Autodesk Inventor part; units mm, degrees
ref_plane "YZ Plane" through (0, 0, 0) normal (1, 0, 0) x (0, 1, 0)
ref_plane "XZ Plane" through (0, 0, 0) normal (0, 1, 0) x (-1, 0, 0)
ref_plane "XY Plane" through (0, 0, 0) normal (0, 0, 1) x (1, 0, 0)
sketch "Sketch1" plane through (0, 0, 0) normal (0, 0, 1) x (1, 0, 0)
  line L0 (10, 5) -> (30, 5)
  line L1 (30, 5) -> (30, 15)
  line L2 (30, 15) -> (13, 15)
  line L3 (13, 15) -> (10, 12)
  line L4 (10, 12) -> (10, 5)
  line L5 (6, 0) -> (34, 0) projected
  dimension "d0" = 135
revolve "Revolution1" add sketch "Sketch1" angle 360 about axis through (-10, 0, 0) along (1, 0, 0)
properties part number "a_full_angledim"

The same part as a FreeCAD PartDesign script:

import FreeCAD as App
import Part
import Sketcher

V = App.Vector
Q = App.Units.Quantity

doc = App.newDocument("Part")
body = doc.addObject("PartDesign::Body", "Body")

# Sketch on XY plane
sketch1 = body.newObject("Sketcher::SketchObject", "Sketch")
sketch1.AttachmentSupport = (doc.getObject("XY_Plane"), [""])
sketch1.MapMode = "FlatFace"
sketch1.addGeometry(Part.LineSegment(V(10, 12, 0), V(10, 5, 0)), False)
sketch1.addGeometry(Part.LineSegment(V(10, 5, 0), V(30, 5, 0)), False)
sketch1.addGeometry(Part.LineSegment(V(30, 5, 0), V(30, 15, 0)), False)
sketch1.addGeometry(Part.LineSegment(V(30, 15, 0), V(13, 15, 0)), False)
sketch1.addGeometry(Part.LineSegment(V(13, 15, 0), V(10, 12, 0)), False)
sketch1.addConstraint(Sketcher.Constraint("Coincident", 0, 2, 1, 1))
sketch1.addConstraint(Sketcher.Constraint("Coincident", 1, 2, 2, 1))
sketch1.addConstraint(Sketcher.Constraint("Coincident", 2, 2, 3, 1))
sketch1.addConstraint(Sketcher.Constraint("Coincident", 3, 2, 4, 1))
sketch1.addConstraint(Sketcher.Constraint("Coincident", 4, 2, 0, 1))
sketch1.addConstraint(Sketcher.Constraint("Vertical", 0))
sketch1.addConstraint(Sketcher.Constraint("Horizontal", 1))
sketch1.addConstraint(Sketcher.Constraint("Vertical", 2))
sketch1.addConstraint(Sketcher.Constraint("Horizontal", 3))
sketch1.addConstraint(Sketcher.Constraint("Angle", 4, Q("-135 deg")))
sketch1.addConstraint(Sketcher.Constraint("DistanceX", 1, 1, 1, 2, 20.0))
sketch1.addConstraint(Sketcher.Constraint("DistanceX", 3, 2, 3, 1, 17.0))
sketch1.addConstraint(Sketcher.Constraint("DistanceY", 0, 2, 0, 1, 7.0))
sketch1.addConstraint(Sketcher.Constraint("DistanceX", -1, 1, 0, 2, 10.0))
sketch1.addConstraint(Sketcher.Constraint("DistanceY", -1, 1, 0, 2, 5.0))
revolution = body.newObject("PartDesign::Revolution", "Revolution")
revolution.Profile = sketch1
revolution.ReferenceAxis = (sketch1, ["H_Axis"])
revolution.Angle = 360

doc.recompute()
